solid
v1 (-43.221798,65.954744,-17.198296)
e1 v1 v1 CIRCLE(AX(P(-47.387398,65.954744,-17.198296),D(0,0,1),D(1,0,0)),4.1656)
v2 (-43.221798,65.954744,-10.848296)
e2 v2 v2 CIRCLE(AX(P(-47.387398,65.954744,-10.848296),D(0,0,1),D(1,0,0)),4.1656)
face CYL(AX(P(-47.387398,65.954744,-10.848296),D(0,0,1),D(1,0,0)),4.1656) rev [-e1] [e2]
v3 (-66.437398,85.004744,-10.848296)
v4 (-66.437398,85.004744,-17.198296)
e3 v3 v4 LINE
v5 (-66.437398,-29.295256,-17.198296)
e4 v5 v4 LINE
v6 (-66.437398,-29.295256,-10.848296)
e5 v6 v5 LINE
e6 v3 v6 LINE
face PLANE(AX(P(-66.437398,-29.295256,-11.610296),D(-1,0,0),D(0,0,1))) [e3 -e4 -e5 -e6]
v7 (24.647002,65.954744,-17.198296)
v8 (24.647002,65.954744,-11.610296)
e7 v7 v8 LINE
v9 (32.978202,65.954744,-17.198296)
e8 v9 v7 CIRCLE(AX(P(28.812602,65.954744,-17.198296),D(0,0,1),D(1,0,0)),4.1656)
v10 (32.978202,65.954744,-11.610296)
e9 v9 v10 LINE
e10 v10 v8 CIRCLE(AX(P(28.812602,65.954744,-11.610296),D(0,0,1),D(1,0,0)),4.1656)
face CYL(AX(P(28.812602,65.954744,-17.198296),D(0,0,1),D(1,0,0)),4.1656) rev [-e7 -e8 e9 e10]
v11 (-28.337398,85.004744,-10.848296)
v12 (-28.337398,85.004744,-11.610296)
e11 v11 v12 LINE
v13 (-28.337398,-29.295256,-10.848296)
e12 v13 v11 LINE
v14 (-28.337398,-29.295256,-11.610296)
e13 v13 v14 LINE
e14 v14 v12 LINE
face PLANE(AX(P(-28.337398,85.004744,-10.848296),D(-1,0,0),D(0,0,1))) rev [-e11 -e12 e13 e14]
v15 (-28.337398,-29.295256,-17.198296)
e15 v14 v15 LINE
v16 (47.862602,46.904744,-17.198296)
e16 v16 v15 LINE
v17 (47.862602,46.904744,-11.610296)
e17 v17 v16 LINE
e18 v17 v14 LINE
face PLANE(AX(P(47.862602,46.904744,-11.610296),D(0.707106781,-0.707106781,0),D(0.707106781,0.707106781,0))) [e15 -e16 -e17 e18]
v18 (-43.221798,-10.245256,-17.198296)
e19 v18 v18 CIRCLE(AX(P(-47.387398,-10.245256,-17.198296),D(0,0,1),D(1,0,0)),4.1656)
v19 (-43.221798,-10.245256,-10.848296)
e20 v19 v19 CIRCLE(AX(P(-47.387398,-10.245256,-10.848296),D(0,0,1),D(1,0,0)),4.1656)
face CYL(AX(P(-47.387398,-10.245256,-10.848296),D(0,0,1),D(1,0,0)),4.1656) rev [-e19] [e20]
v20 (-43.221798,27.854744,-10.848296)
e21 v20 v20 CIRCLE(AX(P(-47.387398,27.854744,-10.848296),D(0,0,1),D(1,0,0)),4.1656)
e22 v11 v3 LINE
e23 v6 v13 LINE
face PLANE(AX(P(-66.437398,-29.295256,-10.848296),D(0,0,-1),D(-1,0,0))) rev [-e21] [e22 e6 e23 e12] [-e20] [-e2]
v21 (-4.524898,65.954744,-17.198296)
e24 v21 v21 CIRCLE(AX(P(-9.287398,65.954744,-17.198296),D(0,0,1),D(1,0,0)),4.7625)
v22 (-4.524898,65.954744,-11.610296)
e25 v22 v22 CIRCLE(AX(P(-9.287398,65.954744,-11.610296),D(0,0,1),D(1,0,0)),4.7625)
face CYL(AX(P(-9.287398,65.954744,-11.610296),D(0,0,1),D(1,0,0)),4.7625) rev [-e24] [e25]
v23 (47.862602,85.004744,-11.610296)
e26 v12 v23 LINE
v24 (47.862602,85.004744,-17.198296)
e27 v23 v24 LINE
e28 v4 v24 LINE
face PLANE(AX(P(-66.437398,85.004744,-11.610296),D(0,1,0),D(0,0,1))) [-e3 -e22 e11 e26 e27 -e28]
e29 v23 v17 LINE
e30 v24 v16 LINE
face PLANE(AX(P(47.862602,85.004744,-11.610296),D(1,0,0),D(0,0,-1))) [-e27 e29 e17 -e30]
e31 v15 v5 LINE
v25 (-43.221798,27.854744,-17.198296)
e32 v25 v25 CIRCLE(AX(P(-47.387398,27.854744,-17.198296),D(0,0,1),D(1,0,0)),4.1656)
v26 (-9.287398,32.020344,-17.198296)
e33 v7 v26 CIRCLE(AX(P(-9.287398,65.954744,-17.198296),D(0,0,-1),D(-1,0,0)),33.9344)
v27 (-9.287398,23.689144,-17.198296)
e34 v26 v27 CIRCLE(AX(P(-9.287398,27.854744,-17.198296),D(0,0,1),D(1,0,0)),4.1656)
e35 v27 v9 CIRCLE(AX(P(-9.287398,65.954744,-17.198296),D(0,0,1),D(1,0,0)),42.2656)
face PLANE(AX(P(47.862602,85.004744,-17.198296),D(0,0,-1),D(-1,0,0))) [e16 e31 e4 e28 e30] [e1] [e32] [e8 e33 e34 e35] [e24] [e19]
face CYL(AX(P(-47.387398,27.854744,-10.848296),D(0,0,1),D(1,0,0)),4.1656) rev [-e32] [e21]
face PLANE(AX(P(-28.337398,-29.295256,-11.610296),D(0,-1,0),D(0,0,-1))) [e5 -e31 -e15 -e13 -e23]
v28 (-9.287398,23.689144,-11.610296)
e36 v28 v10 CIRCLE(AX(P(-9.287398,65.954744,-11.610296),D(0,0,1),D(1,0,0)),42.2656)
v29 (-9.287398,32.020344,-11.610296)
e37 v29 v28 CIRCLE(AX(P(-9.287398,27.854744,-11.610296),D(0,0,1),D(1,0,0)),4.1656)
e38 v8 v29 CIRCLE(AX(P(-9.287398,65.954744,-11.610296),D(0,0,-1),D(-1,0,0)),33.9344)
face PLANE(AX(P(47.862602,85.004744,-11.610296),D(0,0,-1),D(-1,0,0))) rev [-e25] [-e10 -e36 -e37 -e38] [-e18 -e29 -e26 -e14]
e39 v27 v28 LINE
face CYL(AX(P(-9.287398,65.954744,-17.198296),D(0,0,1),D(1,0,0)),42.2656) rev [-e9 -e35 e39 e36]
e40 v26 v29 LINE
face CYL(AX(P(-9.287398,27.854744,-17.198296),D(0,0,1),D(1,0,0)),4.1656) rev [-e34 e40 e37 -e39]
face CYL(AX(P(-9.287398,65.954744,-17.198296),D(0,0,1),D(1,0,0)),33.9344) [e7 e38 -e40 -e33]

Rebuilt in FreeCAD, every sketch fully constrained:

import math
import FreeCAD as App
import Part
import Sketcher
Q = App.Units.Quantity

doc = App.newDocument("Part")
params = doc.addObject("Spreadsheet::Sheet", "Params")
for row, (alias, value) in enumerate([
    ("sketch1_width", "1.5 in"),
    ("sketch1_width2", "4.5 in"),
    ("pad1_length", "0.22 in"),
    ("sketch2_width", "1.5 in"),
    ("sketch2_height", "4.5 in"),
    ("pad2_length", "0.03 in"),
    ("sketch3_radius", "1.664 in"),
    ("sketch3_radius2", "0.164 in"),
    ("sketch4_diameter", "0.328 in"),
    ("hole_diameter", "0.328 in"),
    ("sketch5_diameter", "0.328 in"),
    ("hole2_diameter", "0.328 in"),
    ("sketch6_diameter", "0.328 in"),
    ("hole3_diameter", "0.328 in"),
    ("sketch7_diameter", "0.375 in"),
    ("hole4_diameter", "0.375 in"),
], start=1):
    params.set(f"A{row}", alias)
    params.set(f"B{row}", "=" + value)
    params.setAlias(f"B{row}", alias)

body = doc.addObject("PartDesign::Body", "Body")

sketch1 = body.newObject("Sketcher::SketchObject", "Sketch")
sketch1.AttachmentSupport = (doc.getObject("XY_Plane"), [""])
sketch1.MapMode = "FlatFace"
sketch1.AttachmentOffset = App.Placement(App.Vector(0, 0, -17.198296), App.Rotation())
sketch1.addGeometry(Part.LineSegment(App.Vector(48, 85, 0), App.Vector(48, 47, 0)), False)
sketch1.addGeometry(Part.LineSegment(App.Vector(48, 47, 0), App.Vector(-28, -29, 0)), False)
sketch1.addGeometry(Part.LineSegment(App.Vector(-28, -29, 0), App.Vector(-66, -29, 0)), False)
sketch1.addGeometry(Part.LineSegment(App.Vector(-66, -29, 0), App.Vector(-66, 85, 0)), False)
sketch1.addGeometry(Part.LineSegment(App.Vector(-66, 85, 0), App.Vector(48, 85, 0)), False)
sketch1.addConstraint(Sketcher.Constraint("Coincident", 0, 2, 1, 1))
sketch1.addConstraint(Sketcher.Constraint("Coincident", 1, 2, 2, 1))
sketch1.addConstraint(Sketcher.Constraint("Coincident", 2, 2, 3, 1))
sketch1.addConstraint(Sketcher.Constraint("Coincident", 3, 2, 4, 1))
sketch1.addConstraint(Sketcher.Constraint("Coincident", 4, 2, 0, 1))
sketch1.addConstraint(Sketcher.Constraint("Vertical", 0))
sketch1.addConstraint(Sketcher.Constraint("Horizontal", 2))
sketch1.addConstraint(Sketcher.Constraint("Vertical", 3))
sketch1.addConstraint(Sketcher.Constraint("Horizontal", 4))
sketch1.addConstraint(Sketcher.Constraint("Equal", 2, 0))
sketch1.addConstraint(Sketcher.Constraint("Equal", 4, 3))
sketch1.addConstraint(Sketcher.Constraint("DistanceX", 2, 2, 2, 1, Q("1.5 in")))
sketch1.addConstraint(Sketcher.Constraint("DistanceX", 4, 1, 4, 2, Q("4.5 in")))
sketch1.addConstraint(Sketcher.Constraint("DistanceX", -1, 1, 0, 2, 47.862602))
sketch1.addConstraint(Sketcher.Constraint("DistanceY", -1, 1, 0, 2, 46.904744))
sketch1.setExpression("Constraints[11]", "Params.sketch1_width")
sketch1.setExpression("Constraints[12]", "Params.sketch1_width2")
pad1 = body.newObject("PartDesign::Pad", "Pad")
pad1.Profile = sketch1
pad1.setExpression("Length", "Params.pad1_length")

sketch2 = body.newObject("Sketcher::SketchObject", "Sketch001")
sketch2.AttachmentSupport = (doc.getObject("XY_Plane"), [""])
sketch2.MapMode = "FlatFace"
sketch2.AttachmentOffset = App.Placement(App.Vector(0, 0, -11.610296), App.Rotation())
sketch2.addGeometry(Part.LineSegment(App.Vector(-66, 85, 0), App.Vector(-66, -29, 0)), False)
sketch2.addGeometry(Part.LineSegment(App.Vector(-66, -29, 0), App.Vector(-28, -29, 0)), False)
sketch2.addGeometry(Part.LineSegment(App.Vector(-28, -29, 0), App.Vector(-28, 85, 0)), False)
sketch2.addGeometry(Part.LineSegment(App.Vector(-28, 85, 0), App.Vector(-66, 85, 0)), False)
sketch2.addConstraint(Sketcher.Constraint("Coincident", 0, 2, 1, 1))
sketch2.addConstraint(Sketcher.Constraint("Coincident", 1, 2, 2, 1))
sketch2.addConstraint(Sketcher.Constraint("Coincident", 2, 2, 3, 1))
sketch2.addConstraint(Sketcher.Constraint("Coincident", 3, 2, 0, 1))
sketch2.addConstraint(Sketcher.Constraint("Vertical", 0))
sketch2.addConstraint(Sketcher.Constraint("Horizontal", 1))
sketch2.addConstraint(Sketcher.Constraint("Vertical", 2))
sketch2.addConstraint(Sketcher.Constraint("Horizontal", 3))
sketch2.addConstraint(Sketcher.Constraint("DistanceX", 1, 1, 1, 2, Q("1.5 in")))
sketch2.addConstraint(Sketcher.Constraint("DistanceY", 0, 2, 0, 1, Q("4.5 in")))
sketch2.addConstraint(Sketcher.Constraint("DistanceX", 0, 2, -1, 1, 66.437398))
sketch2.addConstraint(Sketcher.Constraint("DistanceY", 0, 2, -1, 1, 29.295256))
sketch2.setExpression("Constraints[8]", "Params.sketch2_width")
sketch2.setExpression("Constraints[9]", "Params.sketch2_height")
pad2 = body.newObject("PartDesign::Pad", "Pad001")
pad2.Profile = sketch2
pad2.setExpression("Length", "Params.pad2_length")

sketch3 = body.newObject("Sketcher::SketchObject", "Sketch002")
sketch3.AttachmentSupport = (doc.getObject("XY_Plane"), [""])
sketch3.MapMode = "FlatFace"
sketch3.AttachmentOffset = App.Placement(App.Vector(0, 0, -11.610296), App.Rotation())
sketch3.addGeometry(Part.ArcOfCircle(Part.Circle(App.Vector(-9.3, 66, 0), App.Vector(0, 0, 1), 42.3), math.radians(-90), math.radians(0)), False)
sketch3.addGeometry(Part.ArcOfCircle(Part.Circle(App.Vector(28.8, 66, 0), App.Vector(0, 0, 1), 4.2), math.radians(0), math.radians(180)), False)
sketch3.addGeometry(Part.ArcOfCircle(Part.Circle(App.Vector(-9.3, 66, 0), App.Vector(0, 0, 1), 33.9), math.radians(-90), math.radians(0)), False)
sketch3.addGeometry(Part.ArcOfCircle(Part.Circle(App.Vector(-9.3, 27.9, 0), App.Vector(0, 0, 1), 4.2), math.radians(90), math.radians(270)), False)
sketch3.addConstraint(Sketcher.Constraint("Tangent", 0, 2, 1, 1))
sketch3.addConstraint(Sketcher.Constraint("Tangent", 1, 2, 2, 2))
sketch3.addConstraint(Sketcher.Constraint("Tangent", 2, 1, 3, 1))
sketch3.addConstraint(Sketcher.Constraint("Tangent", 3, 2, 0, 1))
sketch3.addConstraint(Sketcher.Constraint("Coincident", 2, 3, 0, 3))
sketch3.addConstraint(Sketcher.Constraint("Horizontal", 0, 3, 1, 3))
sketch3.addConstraint(Sketcher.Constraint("Vertical", 2, 3, 3, 3))
sketch3.addConstraint(Sketcher.Constraint("Radius", 0, Q("1.664 in")))
sketch3.addConstraint(Sketcher.Constraint("Radius", 1, Q("0.164 in")))
sketch3.addConstraint(Sketcher.Constraint("DistanceX", 0, 3, -1, 1, 9.287398))
sketch3.addConstraint(Sketcher.Constraint("DistanceY", -1, 1, 0, 3, 65.954744))
sketch3.setExpression("Constraints[7]", "Params.sketch3_radius")
sketch3.setExpression("Constraints[8]", "Params.sketch3_radius2")
pocket1 = body.newObject("PartDesign::Pocket", "Pocket")
pocket1.Profile = sketch3
pocket1.Type = "ThroughAll"

sketch4 = body.newObject("Sketcher::SketchObject", "Sketch003")
sketch4.AttachmentSupport = (doc.getObject("XY_Plane"), [""])
sketch4.MapMode = "FlatFace"
sketch4.AttachmentOffset = App.Placement(App.Vector(0, 0, -10.848296), App.Rotation())
sketch4.addGeometry(Part.Circle(App.Vector(-47.4, -10.2, 0), App.Vector(0, 0, 1), 4.2), False)
sketch4.addConstraint(Sketcher.Constraint("Diameter", 0, Q("0.328 in")))
sketch4.addConstraint(Sketcher.Constraint("DistanceX", 0, 3, -1, 1, 47.387398))
sketch4.addConstraint(Sketcher.Constraint("DistanceY", 0, 3, -1, 1, 10.245256))
sketch4.setExpression("Constraints[0]", "Params.sketch4_diameter")
doc.recompute()
hole = body.newObject("PartDesign::Hole", "Hole")
hole.Profile = sketch4
hole.ThreadType = "None"
hole.setExpression("Diameter", "Params.hole_diameter")
hole.DepthType = "ThroughAll"

sketch5 = body.newObject("Sketcher::SketchObject", "Sketch004")
sketch5.AttachmentSupport = (doc.getObject("XY_Plane"), [""])
sketch5.MapMode = "FlatFace"
sketch5.AttachmentOffset = App.Placement(App.Vector(0, 0, -10.848296), App.Rotation())
sketch5.addGeometry(Part.Circle(App.Vector(-47.4, 66, 0), App.Vector(0, 0, 1), 4.2), False)
sketch5.addConstraint(Sketcher.Constraint("Diameter", 0, Q("0.328 in")))
sketch5.addConstraint(Sketcher.Constraint("DistanceX", 0, 3, -1, 1, 47.387398))
sketch5.addConstraint(Sketcher.Constraint("DistanceY", -1, 1, 0, 3, 65.954744))
sketch5.setExpression("Constraints[0]", "Params.sketch5_diameter")
doc.recompute()
hole2 = body.newObject("PartDesign::Hole", "Hole001")
hole2.Profile = sketch5
hole2.ThreadType = "None"
hole2.setExpression("Diameter", "Params.hole2_diameter")
hole2.DepthType = "ThroughAll"

sketch6 = body.newObject("Sketcher::SketchObject", "Sketch005")
sketch6.AttachmentSupport = (doc.getObject("XY_Plane"), [""])
sketch6.MapMode = "FlatFace"
sketch6.AttachmentOffset = App.Placement(App.Vector(0, 0, -10.848296), App.Rotation())
sketch6.addGeometry(Part.Circle(App.Vector(-47.4, 27.9, 0), App.Vector(0, 0, 1), 4.2), False)
sketch6.addConstraint(Sketcher.Constraint("Diameter", 0, Q("0.328 in")))
sketch6.addConstraint(Sketcher.Constraint("DistanceX", 0, 3, -1, 1, 47.387398))
sketch6.addConstraint(Sketcher.Constraint("DistanceY", -1, 1, 0, 3, 27.854744))
sketch6.setExpression("Constraints[0]", "Params.sketch6_diameter")
doc.recompute()
hole3 = body.newObject("PartDesign::Hole", "Hole002")
hole3.Profile = sketch6
hole3.ThreadType = "None"
hole3.setExpression("Diameter", "Params.hole3_diameter")
hole3.DepthType = "ThroughAll"

sketch7 = body.newObject("Sketcher::SketchObject", "Sketch006")
sketch7.AttachmentSupport = (doc.getObject("XY_Plane"), [""])
sketch7.MapMode = "FlatFace"
sketch7.AttachmentOffset = App.Placement(App.Vector(0, 0, -11.610296), App.Rotation())
sketch7.addGeometry(Part.Circle(App.Vector(-9.3, 66, 0), App.Vector(0, 0, 1), 4.8), False)
sketch7.addConstraint(Sketcher.Constraint("Diameter", 0, Q("0.375 in")))
sketch7.addConstraint(Sketcher.Constraint("DistanceX", 0, 3, -1, 1, 9.287398))
sketch7.addConstraint(Sketcher.Constraint("DistanceY", -1, 1, 0, 3, 65.954744))
sketch7.setExpression("Constraints[0]", "Params.sketch7_diameter")
doc.recompute()
hole4 = body.newObject("PartDesign::Hole", "Hole003")
hole4.Profile = sketch7
hole4.ThreadType = "None"
hole4.setExpression("Diameter", "Params.hole4_diameter")
hole4.DepthType = "ThroughAll"

doc.recompute()
